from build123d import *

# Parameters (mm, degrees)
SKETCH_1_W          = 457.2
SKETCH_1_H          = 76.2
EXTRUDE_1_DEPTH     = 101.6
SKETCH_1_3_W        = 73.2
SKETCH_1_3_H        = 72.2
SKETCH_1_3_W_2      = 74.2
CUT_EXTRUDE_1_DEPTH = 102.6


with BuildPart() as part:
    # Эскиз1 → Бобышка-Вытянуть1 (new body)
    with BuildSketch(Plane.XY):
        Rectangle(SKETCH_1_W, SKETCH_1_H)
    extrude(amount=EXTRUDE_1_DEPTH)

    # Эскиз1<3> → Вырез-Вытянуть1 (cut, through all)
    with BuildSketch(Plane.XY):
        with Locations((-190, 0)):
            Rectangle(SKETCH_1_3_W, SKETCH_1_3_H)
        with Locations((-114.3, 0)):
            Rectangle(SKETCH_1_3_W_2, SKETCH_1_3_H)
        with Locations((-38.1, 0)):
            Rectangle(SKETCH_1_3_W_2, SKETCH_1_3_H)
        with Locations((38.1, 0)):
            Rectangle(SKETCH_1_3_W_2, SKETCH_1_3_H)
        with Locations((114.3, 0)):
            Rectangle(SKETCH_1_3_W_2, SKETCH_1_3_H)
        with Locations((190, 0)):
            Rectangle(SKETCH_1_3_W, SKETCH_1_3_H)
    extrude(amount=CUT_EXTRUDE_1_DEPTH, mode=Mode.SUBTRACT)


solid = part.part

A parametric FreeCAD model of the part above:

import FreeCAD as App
import Part
import Sketcher

V = App.Vector
Q = App.Units.Quantity

doc = App.newDocument("Part")
body = doc.addObject("PartDesign::Body", "Body")

sketch1 = body.newObject("Sketcher::SketchObject", "Sketch")
sketch1.AttachmentSupport = (doc.getObject("XY_Plane"), [""])
sketch1.MapMode = "FlatFace"
sketch1.addGeometry(Part.LineSegment(V(-228.6, 38.1, 0), V(-228.6, -38.1, 0)), False)
sketch1.addGeometry(Part.LineSegment(V(-228.6, -38.1, 0), V(228.6, -38.1, 0)), False)
sketch1.addGeometry(Part.LineSegment(V(228.6, -38.1, 0), V(228.6, 38.1, 0)), False)
sketch1.addGeometry(Part.LineSegment(V(228.6, 38.1, 0), V(-228.6, 38.1, 0)), False)
sketch1.addConstraint(Sketcher.Constraint("Coincident", 0, 2, 1, 1))
sketch1.addConstraint(Sketcher.Constraint("Coincident", 1, 2, 2, 1))
sketch1.addConstraint(Sketcher.Constraint("Coincident", 2, 2, 3, 1))
sketch1.addConstraint(Sketcher.Constraint("Coincident", 3, 2, 0, 1))
sketch1.addConstraint(Sketcher.Constraint("Vertical", 0))
sketch1.addConstraint(Sketcher.Constraint("Horizontal", 1))
sketch1.addConstraint(Sketcher.Constraint("Vertical", 2))
sketch1.addConstraint(Sketcher.Constraint("Horizontal", 3))
sketch1.addConstraint(Sketcher.Constraint("Symmetric", 0, 2, 2, 2, -1, 1))
sketch1.addConstraint(Sketcher.Constraint("DistanceX", 1, 1, 1, 2, Q("457.2 mm")))
sketch1.addConstraint(Sketcher.Constraint("DistanceY", 0, 2, 0, 1, Q("76.2 mm")))
pad1 = body.newObject("PartDesign::Pad", "Pad")
pad1.Profile = sketch1
pad1.Length = 101.6

sketch2 = body.newObject("Sketcher::SketchObject", "Sketch001")
sketch2.AttachmentSupport = (doc.getObject("XY_Plane"), [""])
sketch2.MapMode = "FlatFace"
sketch2.addGeometry(Part.LineSegment(V(-226.6, 36.1, 0), V(-226.6, -36.1, 0)), False)
sketch2.addGeometry(Part.LineSegment(V(-226.6, -36.1, 0), V(-153.4, -36.1, 0)), False)
sketch2.addGeometry(Part.LineSegment(V(-153.4, -36.1, 0), V(-153.4, 36.1, 0)), False)
sketch2.addGeometry(Part.LineSegment(V(-153.4, 36.1, 0), V(-226.6, 36.1, 0)), False)
sketch2.addGeometry(Part.LineSegment(V(-151.4, 36.1, 0), V(-151.4, -36.1, 0)), False)
sketch2.addGeometry(Part.LineSegment(V(-151.4, -36.1, 0), V(-77.2, -36.1, 0)), False)
sketch2.addGeometry(Part.LineSegment(V(-77.2, -36.1, 0), V(-77.2, 36.1, 0)), False)
sketch2.addGeometry(Part.LineSegment(V(-77.2, 36.1, 0), V(-151.4, 36.1, 0)), False)
sketch2.addGeometry(Part.LineSegment(V(-75.2, 36.1, 0), V(-75.2, -36.1, 0)), False)
sketch2.addGeometry(Part.LineSegment(V(-75.2, -36.1, 0), V(-1, -36.1, 0)), False)
sketch2.addGeometry(Part.LineSegment(V(-1, -36.1, 0), V(-1, 36.1, 0)), False)
sketch2.addGeometry(Part.LineSegment(V(-1, 36.1, 0), V(-75.2, 36.1, 0)), False)
sketch2.addGeometry(Part.LineSegment(V(1, 36.1, 0), V(1, -36.1, 0)), False)
sketch2.addGeometry(Part.LineSegment(V(1, -36.1, 0), V(75.2, -36.1, 0)), False)
sketch2.addGeometry(Part.LineSegment(V(75.2, -36.1, 0), V(75.2, 36.1, 0)), False)
sketch2.addGeometry(Part.LineSegment(V(75.2, 36.1, 0), V(1, 36.1, 0)), False)
sketch2.addGeometry(Part.LineSegment(V(77.2, 36.1, 0), V(77.2, -36.1, 0)), False)
sketch2.addGeometry(Part.LineSegment(V(77.2, -36.1, 0), V(151.4, -36.1, 0)), False)
sketch2.addGeometry(Part.LineSegment(V(151.4, -36.1, 0), V(151.4, 36.1, 0)), False)
sketch2.addGeometry(Part.LineSegment(V(151.4, 36.1, 0), V(77.2, 36.1, 0)), False)
sketch2.addGeometry(Part.LineSegment(V(153.4, 36.1, 0), V(153.4, -36.1, 0)), False)
sketch2.addGeometry(Part.LineSegment(V(153.4, -36.1, 0), V(226.6, -36.1, 0)), False)
sketch2.addGeometry(Part.LineSegment(V(226.6, -36.1, 0), V(226.6, 36.1, 0)), False)
sketch2.addGeometry(Part.LineSegment(V(226.6, 36.1, 0), V(153.4, 36.1, 0)), False)
sketch2.addConstraint(Sketcher.Constraint("Coincident", 0, 2, 1, 1))
sketch2.addConstraint(Sketcher.Constraint("Coincident", 1, 2, 2, 1))
sketch2.addConstraint(Sketcher.Constraint("Coincident", 2, 2, 3, 1))
sketch2.addConstraint(Sketcher.Constraint("Coincident", 3, 2, 0, 1))
sketch2.addConstraint(Sketcher.Constraint("Coincident", 4, 2, 5, 1))
sketch2.addConstraint(Sketcher.Constraint("Coincident", 5, 2, 6, 1))
sketch2.addConstraint(Sketcher.Constraint("Coincident", 6, 2, 7, 1))
sketch2.addConstraint(Sketcher.Constraint("Coincident", 7, 2, 4, 1))
sketch2.addConstraint(Sketcher.Constraint("Coincident", 8, 2, 9, 1))
sketch2.addConstraint(Sketcher.Constraint("Coincident", 9, 2, 10, 1))
sketch2.addConstraint(Sketcher.Constraint("Coincident", 10, 2, 11, 1))
sketch2.addConstraint(Sketcher.Constraint("Coincident", 11, 2, 8, 1))
sketch2.addConstraint(Sketcher.Constraint("Coincident", 12, 2, 13, 1))
sketch2.addConstraint(Sketcher.Constraint("Coincident", 13, 2, 14, 1))
sketch2.addConstraint(Sketcher.Constraint("Coincident", 14, 2, 15, 1))
sketch2.addConstraint(Sketcher.Constraint("Coincident", 15, 2, 12, 1))
sketch2.addConstraint(Sketcher.Constraint("Coincident", 16, 2, 17, 1))
sketch2.addConstraint(Sketcher.Constraint("Coincident", 17, 2, 18, 1))
sketch2.addConstraint(Sketcher.Constraint("Coincident", 18, 2, 19, 1))
sketch2.addConstraint(Sketcher.Constraint("Coincident", 19, 2, 16, 1))
sketch2.addConstraint(Sketcher.Constraint("Coincident", 20, 2, 21, 1))
sketch2.addConstraint(Sketcher.Constraint("Coincident", 21, 2, 22, 1))
sketch2.addConstraint(Sketcher.Constraint("Coincident", 22, 2, 23, 1))
sketch2.addConstraint(Sketcher.Constraint("Coincident", 23, 2, 20, 1))
sketch2.addConstraint(Sketcher.Constraint("Vertical", 0))
sketch2.addConstraint(Sketcher.Constraint("Horizontal", 1))
sketch2.addConstraint(Sketcher.Constraint("Vertical", 2))
sketch2.addConstraint(Sketcher.Constraint("Horizontal", 3))
sketch2.addConstraint(Sketcher.Constraint("Vertical", 4))
sketch2.addConstraint(Sketcher.Constraint("Horizontal", 5))
sketch2.addConstraint(Sketcher.Constraint("Vertical", 6))
sketch2.addConstraint(Sketcher.Constraint("Horizontal", 7))
sketch2.addConstraint(Sketcher.Constraint("Vertical", 8))
sketch2.addConstraint(Sketcher.Constraint("Horizontal", 9))
sketch2.addConstraint(Sketcher.Constraint("Vertical", 10))
sketch2.addConstraint(Sketcher.Constraint("Horizontal", 11))
sketch2.addConstraint(Sketcher.Constraint("Vertical", 12))
sketch2.addConstraint(Sketcher.Constraint("Horizontal", 13))
sketch2.addConstraint(Sketcher.Constraint("Vertical", 14))
sketch2.addConstraint(Sketcher.Constraint("Horizontal", 15))
sketch2.addConstraint(Sketcher.Constraint("Vertical", 16))
sketch2.addConstraint(Sketcher.Constraint("Horizontal", 17))
sketch2.addConstraint(Sketcher.Constraint("Vertical", 18))
sketch2.addConstraint(Sketcher.Constraint("Horizontal", 19))
sketch2.addConstraint(Sketcher.Constraint("Vertical", 20))
sketch2.addConstraint(Sketcher.Constraint("Horizontal", 21))
sketch2.addConstraint(Sketcher.Constraint("Vertical", 22))
sketch2.addConstraint(Sketcher.Constraint("Horizontal", 23))
sketch2.addConstraint(Sketcher.Constraint("Symmetric", 10, 2, 12, 2, -1, 1))
sketch2.addConstraint(Sketcher.Constraint("Symmetric", 8, 2, 14, 2, -1, 1))
sketch2.addConstraint(Sketcher.Constraint("Symmetric", 6, 2, 16, 2, -1, 1))
sketch2.addConstraint(Sketcher.Constraint("Symmetric", 4, 2, 18, 2, -1, 1))
sketch2.addConstraint(Sketcher.Constraint("Symmetric", 2, 2, 20, 2, -1, 1))
sketch2.addConstraint(Sketcher.Constraint("Symmetric", 0, 2, 22, 2, -1, 1))
sketch2.addConstraint(Sketcher.Constraint("Horizontal", 1, 2, 4, 2))
sketch2.addConstraint(Sketcher.Constraint("Horizontal", 3, 2, 6, 2))
sketch2.addConstraint(Sketcher.Constraint("Horizontal", 5, 2, 8, 2))
sketch2.addConstraint(Sketcher.Constraint("Horizontal", 7, 2, 10, 2))
sketch2.addConstraint(Sketcher.Constraint("Horizontal", 9, 2, 12, 2))
sketch2.addConstraint(Sketcher.Constraint("Equal", 7, 9))
sketch2.addConstraint(Sketcher.Constraint("DistanceX", 1, 1, 1, 2, Q("73.2 mm")))
sketch2.addConstraint(Sketcher.Constraint("DistanceX", 5, 1, 5, 2, Q("74.2 mm")))
sketch2.addConstraint(Sketcher.Constraint("DistanceY", 0, 2, 0, 1, Q("72.2 mm")))
sketch2.addConstraint(Sketcher.Constraint("DistanceX", 9, 2, -1, 1, Q("1 mm")))
sketch2.addConstraint(Sketcher.Constraint("DistanceX", 1, 2, 4, 2, Q("2 mm")))
sketch2.addConstraint(Sketcher.Constraint("DistanceX", 5, 2, 8, 2, Q("2 mm")))
pocket1 = body.newObject("PartDesign::Pocket", "Pocket")
pocket1.Profile = sketch2
pocket1.Type = "ThroughAll"
pocket1.Reversed = True

doc.recompute()
